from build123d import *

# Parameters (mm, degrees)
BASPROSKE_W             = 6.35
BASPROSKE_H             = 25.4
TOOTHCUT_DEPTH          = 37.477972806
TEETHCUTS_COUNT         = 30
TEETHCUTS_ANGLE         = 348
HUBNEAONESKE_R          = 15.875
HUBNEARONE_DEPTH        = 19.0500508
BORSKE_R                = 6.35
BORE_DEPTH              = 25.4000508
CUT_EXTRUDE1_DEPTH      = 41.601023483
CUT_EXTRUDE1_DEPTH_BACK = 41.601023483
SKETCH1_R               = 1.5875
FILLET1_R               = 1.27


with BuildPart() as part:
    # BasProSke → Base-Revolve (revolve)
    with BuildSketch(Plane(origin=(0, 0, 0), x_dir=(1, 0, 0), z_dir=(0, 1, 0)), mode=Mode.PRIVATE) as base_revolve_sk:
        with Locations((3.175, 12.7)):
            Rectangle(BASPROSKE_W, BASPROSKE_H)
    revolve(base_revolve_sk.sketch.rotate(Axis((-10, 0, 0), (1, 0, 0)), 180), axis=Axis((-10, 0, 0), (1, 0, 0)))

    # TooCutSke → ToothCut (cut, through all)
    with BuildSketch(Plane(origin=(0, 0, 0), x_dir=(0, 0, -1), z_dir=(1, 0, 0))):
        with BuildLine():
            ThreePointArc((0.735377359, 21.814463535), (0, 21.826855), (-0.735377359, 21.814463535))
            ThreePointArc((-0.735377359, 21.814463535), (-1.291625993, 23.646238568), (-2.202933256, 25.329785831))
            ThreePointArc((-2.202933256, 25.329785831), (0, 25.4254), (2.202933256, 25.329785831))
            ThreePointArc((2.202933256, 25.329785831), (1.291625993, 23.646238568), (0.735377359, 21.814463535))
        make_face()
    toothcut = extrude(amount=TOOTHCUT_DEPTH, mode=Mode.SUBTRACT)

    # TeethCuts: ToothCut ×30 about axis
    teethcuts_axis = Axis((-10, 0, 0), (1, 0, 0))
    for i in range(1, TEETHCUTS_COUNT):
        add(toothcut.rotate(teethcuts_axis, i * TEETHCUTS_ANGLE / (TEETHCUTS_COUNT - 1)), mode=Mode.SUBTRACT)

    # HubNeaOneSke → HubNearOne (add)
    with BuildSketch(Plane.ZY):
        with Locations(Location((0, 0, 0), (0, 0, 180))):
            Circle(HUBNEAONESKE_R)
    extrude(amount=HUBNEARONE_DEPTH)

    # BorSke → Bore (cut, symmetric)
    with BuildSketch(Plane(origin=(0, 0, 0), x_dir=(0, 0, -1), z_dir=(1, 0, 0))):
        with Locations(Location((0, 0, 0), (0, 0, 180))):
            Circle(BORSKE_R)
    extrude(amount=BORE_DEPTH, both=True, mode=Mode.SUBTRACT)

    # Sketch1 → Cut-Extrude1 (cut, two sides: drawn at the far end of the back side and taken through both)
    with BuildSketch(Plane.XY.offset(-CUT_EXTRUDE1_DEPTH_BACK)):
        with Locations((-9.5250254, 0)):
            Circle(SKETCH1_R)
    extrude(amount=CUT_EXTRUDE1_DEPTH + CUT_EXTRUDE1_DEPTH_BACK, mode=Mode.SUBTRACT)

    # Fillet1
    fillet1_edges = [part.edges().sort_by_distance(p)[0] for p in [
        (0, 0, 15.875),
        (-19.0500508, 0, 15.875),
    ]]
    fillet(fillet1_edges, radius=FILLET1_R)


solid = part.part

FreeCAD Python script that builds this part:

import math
import FreeCAD as App
import Part
import Sketcher
Q = App.Units.Quantity


def edges_at(feature, points):
    """Names of the edges that pass closest to the given points."""
    edges = feature.Shape.Edges
    near = lambda p: min(range(len(edges)), key=lambda i: edges[i].distToShape(Part.Vertex(*p))[0])
    return sorted({f"Edge{near(p) + 1}" for p in points})


def add_polygon(sketch, points):
    """Adds a closed chain of lines whose ends are joined by coincident constraints."""
    first, n = sketch.GeometryCount, len(points)
    for a, b in zip(points, points[1:] + points[:1]):
        sketch.addGeometry(Part.LineSegment(App.Vector(*a, 0), App.Vector(*b, 0)), False)
    for i in range(n):
        sketch.addConstraint(Sketcher.Constraint("Coincident", first + i, 2, first + (i + 1) % n, 1))

doc = App.newDocument("Part")
body = doc.addObject("PartDesign::Body", "Body")

# Sketch on XZ plane
sketch1 = doc.addObject("Sketcher::SketchObject", "Sketch")
body.addObject(sketch1)
sketch1.AttachmentSupport = (doc.XZ_Plane, [""])
sketch1.MapMode = "FlatFace"
add_polygon(sketch1, [(0, -25.4), (0, 0), (6.35, 0), (6.35, -25.4)])  # lines 0-3
sketch1.addConstraint([
    Sketcher.Constraint("Vertical", 0),
    Sketcher.Constraint("Horizontal", 1),
    Sketcher.Constraint("Vertical", 2),
    Sketcher.Constraint("Horizontal", 3),
    Sketcher.Constraint("Coincident", 0, 2, -1, 1),
    Sketcher.Constraint("DistanceY", 0, 1, 0, 2, Q("1 in")),
    Sketcher.Constraint("DistanceX", 1, 1, 1, 2, Q("0.25 in")),
])
revolution = doc.addObject("PartDesign::Revolution", "Revolution")
body.addObject(revolution)
revolution.Profile = sketch1
revolution.ReferenceAxis = (sketch1, ["H_Axis"])
revolution.Angle = 360

# Sketch on YZ plane
sketch2 = doc.addObject("Sketcher::SketchObject", "Sketch001")
body.addObject(sketch2)
sketch2.AttachmentSupport = (doc.YZ_Plane, [""])
sketch2.MapMode = "FlatFace"
sketch2.addGeometry([
    Part.ArcOfCircle(Part.Circle(App.Vector(0, 0, 0), App.Vector(0, 0, 1), 21.826855), math.radians(-1.930741), math.radians(1.930741)),
    Part.ArcOfCircle(Part.Circle(App.Vector(19.976731, -10.081412, 0), App.Vector(0, 0, 1), 9.525), math.radians(55.80574), math.radians(78.875718)),
    Part.ArcOfCircle(Part.Circle(App.Vector(0, 0, 0), App.Vector(0, 0, 1), 25.4254), math.radians(-4.970511), math.radians(4.970511)),
    Part.ArcOfCircle(Part.Circle(App.Vector(19.976731, 10.081412, 0), App.Vector(0, 0, 1), 9.525), math.radians(-78.875718), math.radians(-55.80574)),
], False)
sketch2.addConstraint([
    Sketcher.Constraint("Coincident", 0, 1, 1, 2),
    Sketcher.Constraint("Coincident", 1, 1, 2, 1),
    Sketcher.Constraint("Coincident", 2, 2, 3, 2),
    Sketcher.Constraint("Coincident", 3, 1, 0, 2),
    Sketcher.Constraint("Coincident", 0, 3, -1, 1),
    Sketcher.Constraint("Coincident", 2, 3, -1, 1),
    Sketcher.Constraint("Equal", 1, 3),
    Sketcher.Constraint("Symmetric", 1, 3, 3, 3, -1),
    Sketcher.Constraint("Radius", 1, Q("0.375 in")),
    Sketcher.Constraint("Radius", 2, Q("1.001 in")),
    Sketcher.Constraint("Radius", 0, 21.826855),
    Sketcher.Constraint("DistanceX", -1, 1, 1, 3, 19.976731),
    Sketcher.Constraint("DistanceY", 0, 1, 3, 3, 10.816789),
])
pocket1 = doc.addObject("PartDesign::Pocket", "Pocket")
body.addObject(pocket1)
pocket1.Profile = sketch2
pocket1.Type = "ThroughAll"
pocket1.Reversed = True
doc.recompute()

polarpattern = doc.addObject("PartDesign::PolarPattern", "PolarPattern")
body.addObject(polarpattern)
polarpattern.Originals = [pocket1]
polarpattern.Axis = (doc.X_Axis, [""])
polarpattern.Angle = 360
polarpattern.Occurrences = 30
body.Tip = polarpattern

# Sketch on YZ plane
sketch3 = doc.addObject("Sketcher::SketchObject", "Sketch002")
body.addObject(sketch3)
sketch3.AttachmentSupport = (doc.YZ_Plane, [""])
sketch3.MapMode = "FlatFace"
sketch3.addGeometry(Part.Circle(App.Vector(0, 0, 0), App.Vector(0, 0, 1), 15.875), False)
sketch3.addConstraint([
    Sketcher.Constraint("Coincident", 0, 3, -1, 1),
    Sketcher.Constraint("Diameter", 0, Q("1.25 in")),
])
pad1 = doc.addObject("PartDesign::Pad", "Pad")
body.addObject(pad1)
pad1.Profile = sketch3
pad1.Length = 19.050051
pad1.Reversed = True

# Sketch on YZ plane
sketch4 = doc.addObject("Sketcher::SketchObject", "Sketch003")
body.addObject(sketch4)
sketch4.AttachmentSupport = (doc.YZ_Plane, [""])
sketch4.MapMode = "FlatFace"
sketch4.addGeometry(Part.Circle(App.Vector(0, 0, 0), App.Vector(0, 0, 1), 6.35), False)
sketch4.addConstraint([
    Sketcher.Constraint("Coincident", 0, 3, -1, 1),
    Sketcher.Constraint("Diameter", 0, Q("0.5 in")),
])
pocket2 = doc.addObject("PartDesign::Pocket", "Pocket001")
body.addObject(pocket2)
pocket2.Profile = sketch4
pocket2.Length = 50.800102
pocket2.Midplane = True

# Sketch on XY plane
sketch5 = doc.addObject("Sketcher::SketchObject", "Sketch004")
body.addObject(sketch5)
sketch5.AttachmentSupport = (doc.XY_Plane, [""])
sketch5.MapMode = "FlatFace"
sketch5.addGeometry(Part.Circle(App.Vector(-9.525025, 0, 0), App.Vector(0, 0, 1), 1.5875), False)
sketch5.addConstraint([
    Sketcher.Constraint("PointOnObject", 0, 3, -1),
    Sketcher.Constraint("Diameter", 0, Q("0.125 in")),
    Sketcher.Constraint("DistanceX", 0, 3, -1, 1, 9.525025),
])
pocket3 = doc.addObject("PartDesign::Pocket", "Pocket002")
body.addObject(pocket3)
pocket3.Profile = sketch5
pocket3.Type = "ThroughAll"
pocket3.Midplane = True
doc.recompute()

fillet = doc.addObject("PartDesign::Fillet", "Fillet")
body.addObject(fillet)
fillet.Base = (pocket3, edges_at(pocket3, [(0, 0, 15.875), (-19.05, 0, 15.875)]))
fillet.Radius = Q("0.05 in")

doc.recompute()
